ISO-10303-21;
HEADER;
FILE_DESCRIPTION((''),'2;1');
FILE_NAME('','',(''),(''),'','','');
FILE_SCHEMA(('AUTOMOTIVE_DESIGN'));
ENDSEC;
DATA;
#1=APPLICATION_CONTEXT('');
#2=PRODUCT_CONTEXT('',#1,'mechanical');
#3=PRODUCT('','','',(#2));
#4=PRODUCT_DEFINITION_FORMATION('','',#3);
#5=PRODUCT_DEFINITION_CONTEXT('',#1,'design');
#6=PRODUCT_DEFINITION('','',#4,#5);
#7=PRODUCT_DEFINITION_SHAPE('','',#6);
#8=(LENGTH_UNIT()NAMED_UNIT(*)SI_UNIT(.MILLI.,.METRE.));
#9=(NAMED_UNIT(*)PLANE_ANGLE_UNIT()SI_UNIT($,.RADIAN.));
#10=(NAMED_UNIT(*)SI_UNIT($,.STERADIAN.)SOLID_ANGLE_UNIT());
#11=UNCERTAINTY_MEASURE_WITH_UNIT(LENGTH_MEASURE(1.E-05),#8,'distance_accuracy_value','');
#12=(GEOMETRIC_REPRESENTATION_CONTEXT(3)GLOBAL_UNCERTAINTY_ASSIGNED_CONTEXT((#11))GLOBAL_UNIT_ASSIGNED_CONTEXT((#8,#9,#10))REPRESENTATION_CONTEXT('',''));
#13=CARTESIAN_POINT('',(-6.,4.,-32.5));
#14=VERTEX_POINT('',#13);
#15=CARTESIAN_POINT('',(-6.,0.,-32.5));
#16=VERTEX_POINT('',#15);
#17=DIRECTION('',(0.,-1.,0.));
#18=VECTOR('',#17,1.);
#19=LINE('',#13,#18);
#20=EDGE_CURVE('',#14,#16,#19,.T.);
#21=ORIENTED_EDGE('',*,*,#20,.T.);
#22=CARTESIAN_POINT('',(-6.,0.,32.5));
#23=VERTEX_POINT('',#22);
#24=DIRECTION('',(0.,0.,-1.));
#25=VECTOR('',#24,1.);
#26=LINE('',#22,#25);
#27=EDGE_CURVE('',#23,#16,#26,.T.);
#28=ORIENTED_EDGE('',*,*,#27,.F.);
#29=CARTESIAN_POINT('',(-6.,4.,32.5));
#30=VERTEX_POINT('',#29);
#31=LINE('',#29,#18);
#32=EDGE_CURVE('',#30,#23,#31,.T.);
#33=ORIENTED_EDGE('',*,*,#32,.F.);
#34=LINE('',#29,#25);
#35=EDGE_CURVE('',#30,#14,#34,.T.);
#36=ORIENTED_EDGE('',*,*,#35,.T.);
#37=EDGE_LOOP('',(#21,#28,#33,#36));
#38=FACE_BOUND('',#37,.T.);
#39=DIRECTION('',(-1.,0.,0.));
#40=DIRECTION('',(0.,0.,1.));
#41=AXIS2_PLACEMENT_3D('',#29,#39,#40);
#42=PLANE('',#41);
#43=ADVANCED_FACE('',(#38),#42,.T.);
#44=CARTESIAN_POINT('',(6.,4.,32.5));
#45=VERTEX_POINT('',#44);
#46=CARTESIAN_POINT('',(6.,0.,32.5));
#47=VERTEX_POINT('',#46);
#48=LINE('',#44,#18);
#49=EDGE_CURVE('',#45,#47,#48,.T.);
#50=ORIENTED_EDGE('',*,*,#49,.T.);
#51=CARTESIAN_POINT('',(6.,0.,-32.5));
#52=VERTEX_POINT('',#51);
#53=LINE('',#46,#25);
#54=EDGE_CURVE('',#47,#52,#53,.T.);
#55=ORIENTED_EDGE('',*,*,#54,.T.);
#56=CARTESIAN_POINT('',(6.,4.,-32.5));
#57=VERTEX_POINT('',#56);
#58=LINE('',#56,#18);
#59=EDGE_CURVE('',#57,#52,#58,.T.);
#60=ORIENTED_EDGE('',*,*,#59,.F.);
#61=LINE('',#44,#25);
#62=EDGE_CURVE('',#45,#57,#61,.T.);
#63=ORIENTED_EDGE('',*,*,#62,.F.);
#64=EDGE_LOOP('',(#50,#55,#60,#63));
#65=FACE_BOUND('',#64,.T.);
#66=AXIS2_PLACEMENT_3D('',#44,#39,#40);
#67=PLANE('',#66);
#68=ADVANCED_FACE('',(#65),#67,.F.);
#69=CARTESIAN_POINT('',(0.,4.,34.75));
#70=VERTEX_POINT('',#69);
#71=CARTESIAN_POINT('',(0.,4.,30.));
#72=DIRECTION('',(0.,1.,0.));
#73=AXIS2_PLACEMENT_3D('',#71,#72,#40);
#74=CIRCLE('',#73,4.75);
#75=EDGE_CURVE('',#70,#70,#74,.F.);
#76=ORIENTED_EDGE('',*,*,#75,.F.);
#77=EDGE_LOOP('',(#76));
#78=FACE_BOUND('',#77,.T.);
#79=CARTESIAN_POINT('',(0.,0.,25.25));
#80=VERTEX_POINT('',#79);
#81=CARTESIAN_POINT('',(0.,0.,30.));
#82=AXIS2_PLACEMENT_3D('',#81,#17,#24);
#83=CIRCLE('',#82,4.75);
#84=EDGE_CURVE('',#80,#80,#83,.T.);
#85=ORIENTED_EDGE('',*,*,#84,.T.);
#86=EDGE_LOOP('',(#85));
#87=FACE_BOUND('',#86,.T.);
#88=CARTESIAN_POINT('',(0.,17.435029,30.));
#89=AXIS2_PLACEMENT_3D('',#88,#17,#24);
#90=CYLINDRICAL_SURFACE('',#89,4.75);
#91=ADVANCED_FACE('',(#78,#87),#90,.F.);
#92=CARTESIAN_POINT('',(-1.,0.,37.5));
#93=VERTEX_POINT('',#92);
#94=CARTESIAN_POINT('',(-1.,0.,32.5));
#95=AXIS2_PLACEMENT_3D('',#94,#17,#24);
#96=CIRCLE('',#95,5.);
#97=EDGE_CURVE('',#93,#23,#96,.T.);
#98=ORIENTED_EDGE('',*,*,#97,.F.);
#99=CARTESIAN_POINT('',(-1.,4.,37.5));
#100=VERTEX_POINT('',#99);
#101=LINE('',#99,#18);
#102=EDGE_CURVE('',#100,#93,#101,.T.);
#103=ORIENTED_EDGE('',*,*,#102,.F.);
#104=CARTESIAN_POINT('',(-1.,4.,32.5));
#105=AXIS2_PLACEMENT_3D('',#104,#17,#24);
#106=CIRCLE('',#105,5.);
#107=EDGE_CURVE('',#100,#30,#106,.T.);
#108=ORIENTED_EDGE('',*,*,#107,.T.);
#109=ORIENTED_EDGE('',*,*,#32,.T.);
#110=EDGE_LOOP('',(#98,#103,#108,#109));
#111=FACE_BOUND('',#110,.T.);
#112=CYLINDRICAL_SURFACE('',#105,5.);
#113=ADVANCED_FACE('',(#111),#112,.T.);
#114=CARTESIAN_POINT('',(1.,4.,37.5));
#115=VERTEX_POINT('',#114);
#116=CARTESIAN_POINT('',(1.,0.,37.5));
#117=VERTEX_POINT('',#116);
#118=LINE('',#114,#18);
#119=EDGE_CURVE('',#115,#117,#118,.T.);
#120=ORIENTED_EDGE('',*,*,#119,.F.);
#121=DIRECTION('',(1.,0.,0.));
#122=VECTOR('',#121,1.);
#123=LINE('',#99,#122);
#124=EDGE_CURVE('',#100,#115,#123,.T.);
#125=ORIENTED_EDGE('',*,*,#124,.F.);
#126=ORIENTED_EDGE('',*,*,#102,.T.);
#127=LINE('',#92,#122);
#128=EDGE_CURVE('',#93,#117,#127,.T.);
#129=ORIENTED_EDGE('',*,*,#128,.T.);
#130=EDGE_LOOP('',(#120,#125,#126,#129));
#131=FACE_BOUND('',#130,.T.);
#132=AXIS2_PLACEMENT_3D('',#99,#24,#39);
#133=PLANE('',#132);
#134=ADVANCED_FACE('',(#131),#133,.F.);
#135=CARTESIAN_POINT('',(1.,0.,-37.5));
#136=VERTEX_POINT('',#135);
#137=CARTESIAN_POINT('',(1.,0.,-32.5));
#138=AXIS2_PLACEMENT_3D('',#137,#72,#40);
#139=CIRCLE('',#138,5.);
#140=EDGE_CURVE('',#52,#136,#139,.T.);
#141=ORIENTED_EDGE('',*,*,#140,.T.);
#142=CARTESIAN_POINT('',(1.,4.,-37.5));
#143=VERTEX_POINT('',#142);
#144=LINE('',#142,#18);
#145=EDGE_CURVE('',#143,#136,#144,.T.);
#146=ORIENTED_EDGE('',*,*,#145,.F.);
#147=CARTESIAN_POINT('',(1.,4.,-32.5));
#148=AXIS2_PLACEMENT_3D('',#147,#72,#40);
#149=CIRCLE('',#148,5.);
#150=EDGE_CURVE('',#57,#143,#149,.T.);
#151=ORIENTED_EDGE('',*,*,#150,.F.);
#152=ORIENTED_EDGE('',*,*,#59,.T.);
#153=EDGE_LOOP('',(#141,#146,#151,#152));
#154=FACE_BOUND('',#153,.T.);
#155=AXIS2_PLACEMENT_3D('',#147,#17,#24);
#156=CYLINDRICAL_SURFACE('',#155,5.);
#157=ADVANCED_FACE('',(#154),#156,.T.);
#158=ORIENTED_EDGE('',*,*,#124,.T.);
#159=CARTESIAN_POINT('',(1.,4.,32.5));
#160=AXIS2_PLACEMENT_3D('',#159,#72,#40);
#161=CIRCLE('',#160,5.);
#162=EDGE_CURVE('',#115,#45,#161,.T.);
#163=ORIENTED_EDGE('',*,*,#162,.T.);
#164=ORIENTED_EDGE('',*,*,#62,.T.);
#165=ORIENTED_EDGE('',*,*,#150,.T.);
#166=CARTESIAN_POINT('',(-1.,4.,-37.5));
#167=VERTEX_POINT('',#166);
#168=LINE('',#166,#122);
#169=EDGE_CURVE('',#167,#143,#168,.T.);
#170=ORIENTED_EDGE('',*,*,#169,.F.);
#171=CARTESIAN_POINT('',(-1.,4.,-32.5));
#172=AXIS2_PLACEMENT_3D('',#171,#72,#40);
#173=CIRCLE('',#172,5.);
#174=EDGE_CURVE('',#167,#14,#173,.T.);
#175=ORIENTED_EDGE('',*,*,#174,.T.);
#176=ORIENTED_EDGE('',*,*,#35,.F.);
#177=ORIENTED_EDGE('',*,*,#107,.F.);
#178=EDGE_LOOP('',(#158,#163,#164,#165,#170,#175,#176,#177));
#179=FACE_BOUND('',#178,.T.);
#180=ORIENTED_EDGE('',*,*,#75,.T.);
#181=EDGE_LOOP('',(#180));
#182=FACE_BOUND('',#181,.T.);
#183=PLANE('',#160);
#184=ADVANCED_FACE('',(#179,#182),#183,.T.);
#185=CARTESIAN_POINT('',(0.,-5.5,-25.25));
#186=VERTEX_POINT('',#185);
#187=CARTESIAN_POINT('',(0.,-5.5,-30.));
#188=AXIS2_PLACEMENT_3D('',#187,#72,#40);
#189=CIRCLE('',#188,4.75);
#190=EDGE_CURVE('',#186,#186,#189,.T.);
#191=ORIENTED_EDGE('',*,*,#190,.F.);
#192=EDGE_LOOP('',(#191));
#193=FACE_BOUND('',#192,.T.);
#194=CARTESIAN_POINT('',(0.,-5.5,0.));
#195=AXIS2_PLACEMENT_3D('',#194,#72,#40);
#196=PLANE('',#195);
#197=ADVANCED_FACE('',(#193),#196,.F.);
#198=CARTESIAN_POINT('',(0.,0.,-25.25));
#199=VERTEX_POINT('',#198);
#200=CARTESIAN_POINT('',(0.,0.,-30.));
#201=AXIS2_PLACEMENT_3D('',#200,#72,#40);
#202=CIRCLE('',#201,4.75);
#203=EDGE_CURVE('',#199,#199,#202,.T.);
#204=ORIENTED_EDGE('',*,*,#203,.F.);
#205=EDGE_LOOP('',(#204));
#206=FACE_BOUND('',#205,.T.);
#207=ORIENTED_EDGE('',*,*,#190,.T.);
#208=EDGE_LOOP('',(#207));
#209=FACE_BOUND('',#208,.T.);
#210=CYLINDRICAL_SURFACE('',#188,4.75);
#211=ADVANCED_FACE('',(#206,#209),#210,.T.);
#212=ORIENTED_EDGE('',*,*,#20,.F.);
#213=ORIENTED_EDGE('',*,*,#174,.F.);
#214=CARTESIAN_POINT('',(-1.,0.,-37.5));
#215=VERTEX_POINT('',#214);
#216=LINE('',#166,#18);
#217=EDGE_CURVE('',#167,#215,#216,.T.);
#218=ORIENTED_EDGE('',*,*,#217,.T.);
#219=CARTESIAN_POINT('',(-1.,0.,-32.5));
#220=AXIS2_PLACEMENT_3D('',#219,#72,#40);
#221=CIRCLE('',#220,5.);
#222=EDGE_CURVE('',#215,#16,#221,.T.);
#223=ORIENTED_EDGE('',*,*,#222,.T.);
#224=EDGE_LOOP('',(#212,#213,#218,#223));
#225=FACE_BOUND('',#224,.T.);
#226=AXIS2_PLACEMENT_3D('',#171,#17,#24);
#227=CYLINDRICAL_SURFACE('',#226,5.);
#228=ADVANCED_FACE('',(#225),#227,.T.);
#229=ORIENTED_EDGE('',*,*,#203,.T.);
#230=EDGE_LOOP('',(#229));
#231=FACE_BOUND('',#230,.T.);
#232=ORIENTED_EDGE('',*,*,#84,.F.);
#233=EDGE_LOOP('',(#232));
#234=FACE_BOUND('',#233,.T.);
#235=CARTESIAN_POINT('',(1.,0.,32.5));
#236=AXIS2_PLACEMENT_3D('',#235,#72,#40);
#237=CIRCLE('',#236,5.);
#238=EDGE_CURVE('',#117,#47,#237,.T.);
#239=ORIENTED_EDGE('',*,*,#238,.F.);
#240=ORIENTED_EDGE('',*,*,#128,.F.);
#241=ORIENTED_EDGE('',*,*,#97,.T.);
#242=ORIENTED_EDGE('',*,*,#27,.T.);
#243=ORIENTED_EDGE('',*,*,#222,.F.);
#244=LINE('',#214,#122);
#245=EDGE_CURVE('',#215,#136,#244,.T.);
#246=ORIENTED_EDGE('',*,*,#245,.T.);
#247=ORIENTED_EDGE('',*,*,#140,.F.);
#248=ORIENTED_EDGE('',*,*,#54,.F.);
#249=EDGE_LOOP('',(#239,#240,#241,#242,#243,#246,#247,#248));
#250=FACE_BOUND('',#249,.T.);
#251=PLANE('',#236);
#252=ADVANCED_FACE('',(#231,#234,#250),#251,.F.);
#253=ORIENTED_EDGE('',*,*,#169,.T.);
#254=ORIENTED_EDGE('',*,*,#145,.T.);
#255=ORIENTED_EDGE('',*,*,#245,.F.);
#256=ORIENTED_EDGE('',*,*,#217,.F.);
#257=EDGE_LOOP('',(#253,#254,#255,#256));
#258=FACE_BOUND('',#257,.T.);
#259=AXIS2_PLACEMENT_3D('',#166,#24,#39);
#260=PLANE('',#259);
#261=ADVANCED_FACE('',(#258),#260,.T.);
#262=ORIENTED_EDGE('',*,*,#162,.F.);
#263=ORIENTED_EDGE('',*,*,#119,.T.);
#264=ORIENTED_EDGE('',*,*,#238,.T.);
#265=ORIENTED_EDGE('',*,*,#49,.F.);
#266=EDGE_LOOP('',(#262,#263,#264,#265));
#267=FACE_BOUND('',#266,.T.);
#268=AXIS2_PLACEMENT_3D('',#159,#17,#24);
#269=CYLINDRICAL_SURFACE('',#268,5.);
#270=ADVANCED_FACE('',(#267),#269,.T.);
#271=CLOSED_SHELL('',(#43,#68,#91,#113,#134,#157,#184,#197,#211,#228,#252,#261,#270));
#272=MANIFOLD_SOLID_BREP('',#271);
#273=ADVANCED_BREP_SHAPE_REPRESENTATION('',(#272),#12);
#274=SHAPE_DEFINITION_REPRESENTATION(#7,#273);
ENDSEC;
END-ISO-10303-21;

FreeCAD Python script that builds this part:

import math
import FreeCAD as App
import Part
import Sketcher

V = App.Vector

doc = App.newDocument("Part")
body = doc.addObject("PartDesign::Body", "Body")

# Sketch on XZ plane
sketch1 = body.newObject("Sketcher::SketchObject", "Sketch")
sketch1.AttachmentSupport = (doc.getObject("XZ_Plane"), [""])
sketch1.MapMode = "FlatFace"
sketch1.addGeometry([
    Part.LineSegment(V(-1, 37.5, 0), V(1, 37.5, 0)),  # 0
    Part.ArcOfCircle(Part.Circle(V(1, 32.5, 0), V(0, 0, 1), 5), math.radians(0), math.radians(90)),  # 1
    Part.LineSegment(V(6, 32.5, 0), V(6, -32.5, 0)),  # 2
    Part.ArcOfCircle(Part.Circle(V(1, -32.5, 0), V(0, 0, 1), 5), math.radians(-90), math.radians(0)),  # 3
    Part.LineSegment(V(1, -37.5, 0), V(-1, -37.5, 0)),  # 4
    Part.ArcOfCircle(Part.Circle(V(-1, -32.5, 0), V(0, 0, 1), 5), math.radians(180), math.radians(270)),  # 5
    Part.LineSegment(V(-6, -32.5, 0), V(-6, 32.5, 0)),  # 6
    Part.ArcOfCircle(Part.Circle(V(-1, 32.5, 0), V(0, 0, 1), 5), math.radians(90), math.radians(180)),  # 7
], False)
sketch1.addConstraint([
    Sketcher.Constraint("Tangent", 0, 2, 1, 2),
    Sketcher.Constraint("Tangent", 1, 1, 2, 1),
    Sketcher.Constraint("Tangent", 2, 2, 3, 2),
    Sketcher.Constraint("Tangent", 3, 1, 4, 1),
    Sketcher.Constraint("Tangent", 4, 2, 5, 2),
    Sketcher.Constraint("Tangent", 5, 1, 6, 1),
    Sketcher.Constraint("Tangent", 6, 2, 7, 2),
    Sketcher.Constraint("Tangent", 7, 1, 0, 1),
    Sketcher.Constraint("Horizontal", 0),
    Sketcher.Constraint("Vertical", 2),
    Sketcher.Constraint("Horizontal", 4),
    Sketcher.Constraint("Vertical", 6),
    Sketcher.Constraint("Equal", 1, 3),
    Sketcher.Constraint("Equal", 3, 5),
    Sketcher.Constraint("Equal", 5, 7),
    Sketcher.Constraint("Symmetric", 1, 3, 5, 3, -1, 1),
    Sketcher.Constraint("Radius", 1, 5.0),
    Sketcher.Constraint("DistanceX", 0, 1, 0, 2, 2.0),
    Sketcher.Constraint("DistanceY", 2, 2, 2, 1, 65.0),
])
pad1 = body.newObject("PartDesign::Pad", "Pad")
pad1.Profile = sketch1
pad1.Length = 4
pad1.Reversed = True

# Sketch on XZ plane
sketch2 = body.newObject("Sketcher::SketchObject", "Sketch001")
sketch2.AttachmentSupport = (doc.getObject("XZ_Plane"), [""])
sketch2.MapMode = "FlatFace"
sketch2.addGeometry(Part.Circle(V(0, -30, 0), V(0, 0, 1), 4.8), False)
sketch2.addConstraint([
    Sketcher.Constraint("PointOnObject", 0, 3, -2),
    Sketcher.Constraint("Diameter", 0, 9.5),
    Sketcher.Constraint("DistanceY", 0, 3, -1, 1, 30.0),
])
pad2 = body.newObject("PartDesign::Pad", "Pad001")
pad2.Profile = sketch2
pad2.Length = 5.5

# Sketch on XZ plane
sketch3 = body.newObject("Sketcher::SketchObject", "Sketch002")
sketch3.AttachmentSupport = (doc.getObject("XZ_Plane"), [""])
sketch3.MapMode = "FlatFace"
sketch3.addGeometry(Part.Circle(V(0, 30, 0), V(0, 0, 1), 4.8), False)
sketch3.addConstraint([
    Sketcher.Constraint("PointOnObject", 0, 3, -2),
    Sketcher.Constraint("Diameter", 0, 9.5),
    Sketcher.Constraint("DistanceY", -1, 1, 0, 3, 30.0),
])
pocket1 = body.newObject("PartDesign::Pocket", "Pocket")
pocket1.Profile = sketch3
pocket1.Length = 4

doc.recompute()
